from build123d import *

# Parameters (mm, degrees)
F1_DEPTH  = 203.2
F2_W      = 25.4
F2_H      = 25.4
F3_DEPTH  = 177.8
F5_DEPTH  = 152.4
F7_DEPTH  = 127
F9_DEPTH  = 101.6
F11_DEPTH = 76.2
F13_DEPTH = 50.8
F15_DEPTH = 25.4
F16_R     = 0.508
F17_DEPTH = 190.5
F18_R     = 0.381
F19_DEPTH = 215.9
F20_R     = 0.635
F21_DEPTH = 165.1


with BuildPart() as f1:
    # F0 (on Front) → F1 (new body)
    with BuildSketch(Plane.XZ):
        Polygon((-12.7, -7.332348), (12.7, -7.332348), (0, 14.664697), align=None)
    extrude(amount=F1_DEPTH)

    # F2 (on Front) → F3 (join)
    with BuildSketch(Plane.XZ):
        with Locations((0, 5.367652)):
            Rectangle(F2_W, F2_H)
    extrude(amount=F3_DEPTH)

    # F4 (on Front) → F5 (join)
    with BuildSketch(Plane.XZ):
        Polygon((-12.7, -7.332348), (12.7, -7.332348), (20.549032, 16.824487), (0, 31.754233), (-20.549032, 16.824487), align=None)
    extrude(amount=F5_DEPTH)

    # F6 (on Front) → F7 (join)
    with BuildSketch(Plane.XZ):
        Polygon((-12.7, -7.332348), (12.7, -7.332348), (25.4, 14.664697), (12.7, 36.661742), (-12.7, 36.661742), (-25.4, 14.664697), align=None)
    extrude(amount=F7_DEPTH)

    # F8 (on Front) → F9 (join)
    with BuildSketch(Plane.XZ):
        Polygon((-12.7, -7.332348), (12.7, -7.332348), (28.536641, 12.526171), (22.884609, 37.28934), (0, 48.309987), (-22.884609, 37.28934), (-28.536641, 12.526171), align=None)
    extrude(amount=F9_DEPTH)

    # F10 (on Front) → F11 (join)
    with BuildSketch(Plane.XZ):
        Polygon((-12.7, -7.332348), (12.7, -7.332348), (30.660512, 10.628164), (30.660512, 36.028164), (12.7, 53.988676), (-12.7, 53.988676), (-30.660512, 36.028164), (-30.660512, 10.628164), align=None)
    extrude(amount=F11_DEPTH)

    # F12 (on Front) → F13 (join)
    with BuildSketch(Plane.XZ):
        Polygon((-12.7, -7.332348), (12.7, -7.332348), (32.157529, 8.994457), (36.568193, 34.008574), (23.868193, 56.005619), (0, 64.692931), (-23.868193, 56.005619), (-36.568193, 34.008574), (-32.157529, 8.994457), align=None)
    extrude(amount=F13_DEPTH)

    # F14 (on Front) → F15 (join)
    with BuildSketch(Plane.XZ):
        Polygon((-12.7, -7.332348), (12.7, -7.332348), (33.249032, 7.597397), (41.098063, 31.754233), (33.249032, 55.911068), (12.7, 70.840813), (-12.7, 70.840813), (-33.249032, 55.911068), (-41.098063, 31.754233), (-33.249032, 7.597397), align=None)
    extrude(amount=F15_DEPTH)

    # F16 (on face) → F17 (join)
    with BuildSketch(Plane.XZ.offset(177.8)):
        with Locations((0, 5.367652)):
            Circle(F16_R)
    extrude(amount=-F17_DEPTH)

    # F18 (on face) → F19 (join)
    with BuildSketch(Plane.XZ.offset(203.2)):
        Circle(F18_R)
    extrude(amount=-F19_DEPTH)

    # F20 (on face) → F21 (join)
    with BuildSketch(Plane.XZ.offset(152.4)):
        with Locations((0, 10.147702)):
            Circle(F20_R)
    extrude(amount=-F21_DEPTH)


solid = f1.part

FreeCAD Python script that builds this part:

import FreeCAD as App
import Part
import Sketcher
Q = App.Units.Quantity

doc = App.newDocument("Part")
params = doc.addObject("Spreadsheet::Sheet", "Params")
for row, (alias, value) in enumerate([
    ("sketch1_width", "1 in"),
    ("sketch1_length", "1 in"),
    ("pad1_length", "8 in"),
    ("sketch2_width", "1 in"),
    ("pad2_length", "7 in"),
    ("sketch3_width", "1 in"),
    ("sketch3_length", "1 in"),
    ("pad3_length", "6 in"),
    ("sketch4_width", "1 in"),
    ("sketch4_length", "1 in"),
    ("pad4_length", "5 in"),
    ("sketch5_width", "1 in"),
    ("sketch5_length", "1 in"),
    ("pad5_length", "4 in"),
    ("sketch6_width", "1 in"),
    ("sketch6_length", "1 in"),
    ("pad6_length", "3 in"),
    ("sketch7_width", "1 in"),
    ("sketch7_length", "1 in"),
    ("pad7_length", "2 in"),
    ("sketch8_width", "1 in"),
    ("sketch8_length", "1 in"),
    ("pad8_length", "1 in"),
    ("sketch9_diameter", "0.04 in"),
    ("pad9_length", "7.5 in"),
    ("sketch10_diameter", "0.03 in"),
    ("pad10_length", "8.5 in"),
    ("sketch11_diameter", "0.05 in"),
    ("pad11_length", "6.5 in"),
], start=1):
    params.set(f"A{row}", alias)
    params.set(f"B{row}", "=" + value)
    params.setAlias(f"B{row}", alias)

body = doc.addObject("PartDesign::Body", "Body")

sketch1 = body.newObject("Sketcher::SketchObject", "Sketch")
sketch1.AttachmentSupport = (doc.getObject("XZ_Plane"), [""])
sketch1.MapMode = "FlatFace"
sketch1.addGeometry(Part.LineSegment(App.Vector(-13, -7, 0), App.Vector(13, -7, 0)), False)
sketch1.addGeometry(Part.LineSegment(App.Vector(13, -7, 0), App.Vector(0, 15, 0)), False)
sketch1.addGeometry(Part.LineSegment(App.Vector(0, 15, 0), App.Vector(-13, -7, 0)), False)
sketch1.addConstraint(Sketcher.Constraint("Coincident", 0, 2, 1, 1))
sketch1.addConstraint(Sketcher.Constraint("Coincident", 1, 2, 2, 1))
sketch1.addConstraint(Sketcher.Constraint("Coincident", 2, 2, 0, 1))
sketch1.addConstraint(Sketcher.Constraint("Horizontal", 0))
sketch1.addConstraint(Sketcher.Constraint("PointOnObject", 1, 2, -2))
sketch1.addConstraint(Sketcher.Constraint("Equal", 1, 2))
sketch1.addConstraint(Sketcher.Constraint("DistanceX", 0, 1, 0, 2, Q("1 in")))
sketch1.addConstraint(Sketcher.Constraint("Distance", 1, Q("1 in")))
sketch1.addConstraint(Sketcher.Constraint("DistanceY", 0, 2, -1, 1, Q("7.332348 mm")))
sketch1.setExpression("Constraints[6]", "Params.sketch1_width")
sketch1.setExpression("Constraints[7]", "Params.sketch1_length")
pad1 = body.newObject("PartDesign::Pad", "Pad")
pad1.Profile = sketch1
pad1.setExpression("Length", "Params.pad1_length")

sketch2 = body.newObject("Sketcher::SketchObject", "Sketch001")
sketch2.AttachmentSupport = (doc.getObject("XZ_Plane"), [""])
sketch2.MapMode = "FlatFace"
sketch2.addGeometry(Part.LineSegment(App.Vector(-13, 18, 0), App.Vector(-13, -7, 0)), False)
sketch2.addGeometry(Part.LineSegment(App.Vector(-13, -7, 0), App.Vector(13, -7, 0)), False)
sketch2.addGeometry(Part.LineSegment(App.Vector(13, -7, 0), App.Vector(13, 18, 0)), False)
sketch2.addGeometry(Part.LineSegment(App.Vector(13, 18, 0), App.Vector(-13, 18, 0)), False)
sketch2.addConstraint(Sketcher.Constraint("Coincident", 0, 2, 1, 1))
sketch2.addConstraint(Sketcher.Constraint("Coincident", 1, 2, 2, 1))
sketch2.addConstraint(Sketcher.Constraint("Coincident", 2, 2, 3, 1))
sketch2.addConstraint(Sketcher.Constraint("Coincident", 3, 2, 0, 1))
sketch2.addConstraint(Sketcher.Constraint("Vertical", 0))
sketch2.addConstraint(Sketcher.Constraint("Horizontal", 1))
sketch2.addConstraint(Sketcher.Constraint("Vertical", 2))
sketch2.addConstraint(Sketcher.Constraint("Horizontal", 3))
sketch2.addConstraint(Sketcher.Constraint("Equal", 3, 0))
sketch2.addConstraint(Sketcher.Constraint("DistanceX", 1, 1, 1, 2, Q("1 in")))
sketch2.addConstraint(Sketcher.Constraint("DistanceX", 0, 2, -1, 1, Q("0.5 in")))
sketch2.addConstraint(Sketcher.Constraint("DistanceY", -1, 1, 2, 2, Q("18.067652 mm")))
sketch2.setExpression("Constraints[9]", "Params.sketch2_width")
pad2 = body.newObject("PartDesign::Pad", "Pad001")
pad2.Profile = sketch2
pad2.setExpression("Length", "Params.pad2_length")

sketch3 = body.newObject("Sketcher::SketchObject", "Sketch002")
sketch3.AttachmentSupport = (doc.getObject("XZ_Plane"), [""])
sketch3.MapMode = "FlatFace"
sketch3.addGeometry(Part.LineSegment(App.Vector(-13, -7, 0), App.Vector(13, -7, 0)), False)
sketch3.addGeometry(Part.LineSegment(App.Vector(13, -7, 0), App.Vector(21, 17, 0)), False)
sketch3.addGeometry(Part.LineSegment(App.Vector(21, 17, 0), App.Vector(0, 32, 0)), False)
sketch3.addGeometry(Part.LineSegment(App.Vector(0, 32, 0), App.Vector(-21, 17, 0)), False)
sketch3.addGeometry(Part.LineSegment(App.Vector(-21, 17, 0), App.Vector(-13, -7, 0)), False)
sketch3.addConstraint(Sketcher.Constraint("Coincident", 0, 2, 1, 1))
sketch3.addConstraint(Sketcher.Constraint("Coincident", 1, 2, 2, 1))
sketch3.addConstraint(Sketcher.Constraint("Coincident", 2, 2, 3, 1))
sketch3.addConstraint(Sketcher.Constraint("Coincident", 3, 2, 4, 1))
sketch3.addConstraint(Sketcher.Constraint("Coincident", 4, 2, 0, 1))
sketch3.addConstraint(Sketcher.Constraint("Horizontal", 0))
sketch3.addConstraint(Sketcher.Constraint("Symmetric", 1, 2, 3, 2, -2))
sketch3.addConstraint(Sketcher.Constraint("PointOnObject", 2, 2, -2))
sketch3.addConstraint(Sketcher.Constraint("Equal", 1, 2))
sketch3.addConstraint(Sketcher.Constraint("Equal", 3, 4))
sketch3.addConstraint(Sketcher.Constraint("DistanceX", 0, 1, 0, 2, Q("1 in")))
sketch3.addConstraint(Sketcher.Constraint("Distance", 1, Q("1 in")))
sketch3.addConstraint(Sketcher.Constraint("Angle", 1, Q("71.999999 deg")))
sketch3.addConstraint(Sketcher.Constraint("DistanceY", 0, 2, -1, 1, Q("7.332348 mm")))
sketch3.setExpression("Constraints[10]", "Params.sketch3_width")
sketch3.setExpression("Constraints[11]", "Params.sketch3_length")
pad3 = body.newObject("PartDesign::Pad", "Pad002")
pad3.Profile = sketch3
pad3.setExpression("Length", "Params.pad3_length")

sketch4 = body.newObject("Sketcher::SketchObject", "Sketch003")
sketch4.AttachmentSupport = (doc.getObject("XZ_Plane"), [""])
sketch4.MapMode = "FlatFace"
sketch4.addGeometry(Part.LineSegment(App.Vector(-13, -7, 0), App.Vector(13, -7, 0)), False)
sketch4.addGeometry(Part.LineSegment(App.Vector(13, -7, 0), App.Vector(25, 15, 0)), False)
sketch4.addGeometry(Part.LineSegment(App.Vector(25, 15, 0), App.Vector(13, 37, 0)), False)
sketch4.addGeometry(Part.LineSegment(App.Vector(13, 37, 0), App.Vector(-13, 37, 0)), False)
sketch4.addGeometry(Part.LineSegment(App.Vector(-13, 37, 0), App.Vector(-25, 15, 0)), False)
sketch4.addGeometry(Part.LineSegment(App.Vector(-25, 15, 0), App.Vector(-13, -7, 0)), False)
sketch4.addConstraint(Sketcher.Constraint("Coincident", 0, 2, 1, 1))
sketch4.addConstraint(Sketcher.Constraint("Coincident", 1, 2, 2, 1))
sketch4.addConstraint(Sketcher.Constraint("Coincident", 2, 2, 3, 1))
sketch4.addConstraint(Sketcher.Constraint("Coincident", 3, 2, 4, 1))
sketch4.addConstraint(Sketcher.Constraint("Coincident", 4, 2, 5, 1))
sketch4.addConstraint(Sketcher.Constraint("Coincident", 5, 2, 0, 1))
sketch4.addConstraint(Sketcher.Constraint("Horizontal", 0))
sketch4.addConstraint(Sketcher.Constraint("Horizontal", 3))
sketch4.addConstraint(Sketcher.Constraint("Symmetric", 1, 2, 4, 2, -2))
sketch4.addConstraint(Sketcher.Constraint("Parallel", 1, 4))
sketch4.addConstraint(Sketcher.Constraint("Parallel", 2, 5))
sketch4.addConstraint(Sketcher.Constraint("Vertical", 0, 2, 2, 2))
sketch4.addConstraint(Sketcher.Constraint("Vertical", 3, 2, 5, 2))
sketch4.addConstraint(Sketcher.Constraint("DistanceX", 0, 1, 0, 2, Q("1 in")))
sketch4.addConstraint(Sketcher.Constraint("Distance", 1, Q("1 in")))
sketch4.addConstraint(Sketcher.Constraint("DistanceX", -1, 1, 1, 2, Q("1 in")))
sketch4.addConstraint(Sketcher.Constraint("DistanceY", -1, 1, 2, 2, Q("36.661742 mm")))
sketch4.setExpression("Constraints[13]", "Params.sketch4_width")
sketch4.setExpression("Constraints[14]", "Params.sketch4_length")
pad4 = body.newObject("PartDesign::Pad", "Pad003")
pad4.Profile = sketch4
pad4.setExpression("Length", "Params.pad4_length")

sketch5 = body.newObject("Sketcher::SketchObject", "Sketch004")
sketch5.AttachmentSupport = (doc.getObject("XZ_Plane"), [""])
sketch5.MapMode = "FlatFace"
sketch5.addGeometry(Part.LineSegment(App.Vector(-13, -7, 0), App.Vector(13, -7, 0)), False)
sketch5.addGeometry(Part.LineSegment(App.Vector(13, -7, 0), App.Vector(29, 13, 0)), False)
sketch5.addGeometry(Part.LineSegment(App.Vector(29, 13, 0), App.Vector(23, 37, 0)), False)
sketch5.addGeometry(Part.LineSegment(App.Vector(23, 37, 0), App.Vector(0, 48, 0)), False)
sketch5.addGeometry(Part.LineSegment(App.Vector(0, 48, 0), App.Vector(-23, 37, 0)), False)
sketch5.addGeometry(Part.LineSegment(App.Vector(-23, 37, 0), App.Vector(-29, 13, 0)), False)
sketch5.addGeometry(Part.LineSegment(App.Vector(-29, 13, 0), App.Vector(-13, -7, 0)), False)
sketch5.addConstraint(Sketcher.Constraint("Coincident", 0, 2, 1, 1))
sketch5.addConstraint(Sketcher.Constraint("Coincident", 1, 2, 2, 1))
sketch5.addConstraint(Sketcher.Constraint("Coincident", 2, 2, 3, 1))
sketch5.addConstraint(Sketcher.Constraint("Coincident", 3, 2, 4, 1))
sketch5.addConstraint(Sketcher.Constraint("Coincident", 4, 2, 5, 1))
sketch5.addConstraint(Sketcher.Constraint("Coincident", 5, 2, 6, 1))
sketch5.addConstraint(Sketcher.Constraint("Coincident", 6, 2, 0, 1))
sketch5.addConstraint(Sketcher.Constraint("Horizontal", 0))
sketch5.addConstraint(Sketcher.Constraint("Symmetric", 2, 2, 4, 2, -2))
sketch5.addConstraint(Sketcher.Constraint("Symmetric", 1, 2, 5, 2, -2))
sketch5.addConstraint(Sketcher.Constraint("PointOnObject", 3, 2, -2))
sketch5.addConstraint(Sketcher.Constraint("Equal", 1, 2))
sketch5.addConstraint(Sketcher.Constraint("Equal", 2, 3))
sketch5.addConstraint(Sketcher.Constraint("Equal", 5, 6))
sketch5.addConstraint(Sketcher.Constraint("DistanceX", 0, 1, 0, 2, Q("1 in")))
sketch5.addConstraint(Sketcher.Constraint("Distance", 1, Q("1 in")))
sketch5.addConstraint(Sketcher.Constraint("DistanceX", -1, 1, 1, 2, Q("28.536641 mm")))
sketch5.addConstraint(Sketcher.Constraint("DistanceY", -1, 1, 1, 2, Q("12.526171 mm")))
sketch5.addConstraint(Sketcher.Constraint("DistanceX", -1, 1, 2, 2, Q("22.884609 mm")))
sketch5.setExpression("Constraints[14]", "Params.sketch5_width")
sketch5.setExpression("Constraints[15]", "Params.sketch5_length")
pad5 = body.newObject("PartDesign::Pad", "Pad004")
pad5.Profile = sketch5
pad5.setExpression("Length", "Params.pad5_length")

sketch6 = body.newObject("Sketcher::SketchObject", "Sketch005")
sketch6.AttachmentSupport = (doc.getObject("XZ_Plane"), [""])
sketch6.MapMode = "FlatFace"
sketch6.addGeometry(Part.LineSegment(App.Vector(-13, -7, 0), App.Vector(13, -7, 0)), False)
sketch6.addGeometry(Part.LineSegment(App.Vector(13, -7, 0), App.Vector(31, 11, 0)), False)
sketch6.addGeometry(Part.LineSegment(App.Vector(31, 11, 0), App.Vector(31, 36, 0)), False)
sketch6.addGeometry(Part.LineSegment(App.Vector(31, 36, 0), App.Vector(13, 54, 0)), False)
sketch6.addGeometry(Part.LineSegment(App.Vector(13, 54, 0), App.Vector(-13, 54, 0)), False)
sketch6.addGeometry(Part.LineSegment(App.Vector(-13, 54, 0), App.Vector(-31, 36, 0)), False)
sketch6.addGeometry(Part.LineSegment(App.Vector(-31, 36, 0), App.Vector(-31, 11, 0)), False)
sketch6.addGeometry(Part.LineSegment(App.Vector(-31, 11, 0), App.Vector(-13, -7, 0)), False)
sketch6.addConstraint(Sketcher.Constraint("Coincident", 0, 2, 1, 1))
sketch6.addConstraint(Sketcher.Constraint("Coincident", 1, 2, 2, 1))
sketch6.addConstraint(Sketcher.Constraint("Coincident", 2, 2, 3, 1))
sketch6.addConstraint(Sketcher.Constraint("Coincident", 3, 2, 4, 1))
sketch6.addConstraint(Sketcher.Constraint("Coincident", 4, 2, 5, 1))
sketch6.addConstraint(Sketcher.Constraint("Coincident", 5, 2, 6, 1))
sketch6.addConstraint(Sketcher.Constraint("Coincident", 6, 2, 7, 1))
sketch6.addConstraint(Sketcher.Constraint("Coincident", 7, 2, 0, 1))
sketch6.addConstraint(Sketcher.Constraint("Horizontal", 0))
sketch6.addConstraint(Sketcher.Constraint("Vertical", 2))
sketch6.addConstraint(Sketcher.Constraint("Horizontal", 4))
sketch6.addConstraint(Sketcher.Constraint("Vertical", 6))
sketch6.addConstraint(Sketcher.Constraint("Symmetric", 2, 2, 5, 2, -2))
sketch6.addConstraint(Sketcher.Constraint("Perpendicular", 1, 3))
sketch6.addConstraint(Sketcher.Constraint("Perpendicular", 3, 5))
sketch6.addConstraint(Sketcher.Constraint("Perpendicular", 5, 7))
sketch6.addConstraint(Sketcher.Constraint("Horizontal", 1, 2, 6, 2))
sketch6.addConstraint(Sketcher.Constraint("Vertical", 0, 2, 3, 2))
sketch6.addConstraint(Sketcher.Constraint("Vertical", 4, 2, 7, 2))
sketch6.addConstraint(Sketcher.Constraint("Equal", 4, 2))
sketch6.addConstraint(Sketcher.Constraint("DistanceX", 0, 1, 0, 2, Q("1 in")))
sketch6.addConstraint(Sketcher.Constraint("Distance", 1, Q("1 in")))
sketch6.addConstraint(Sketcher.Constraint("DistanceY", 0, 2, -1, 1, Q("7.332348 mm")))
sketch6.setExpression("Constraints[20]", "Params.sketch6_width")
sketch6.setExpression("Constraints[21]", "Params.sketch6_length")
pad6 = body.newObject("PartDesign::Pad", "Pad005")
pad6.Profile = sketch6
pad6.setExpression("Length", "Params.pad6_length")

sketch7 = body.newObject("Sketcher::SketchObject", "Sketch006")
sketch7.AttachmentSupport = (doc.getObject("XZ_Plane"), [""])
sketch7.MapMode = "FlatFace"
sketch7.addGeometry(Part.LineSegment(App.Vector(-13, -7, 0), App.Vector(13, -7, 0)), False)
sketch7.addGeometry(Part.LineSegment(App.Vector(13, -7, 0), App.Vector(32, 9, 0)), False)
sketch7.addGeometry(Part.LineSegment(App.Vector(32, 9, 0), App.Vector(37, 34, 0)), False)
sketch7.addGeometry(Part.LineSegment(App.Vector(37, 34, 0), App.Vector(24, 56, 0)), False)
sketch7.addGeometry(Part.LineSegment(App.Vector(24, 56, 0), App.Vector(0, 65, 0)), False)
sketch7.addGeometry(Part.LineSegment(App.Vector(0, 65, 0), App.Vector(-24, 56, 0)), False)
sketch7.addGeometry(Part.LineSegment(App.Vector(-24, 56, 0), App.Vector(-37, 34, 0)), False)
sketch7.addGeometry(Part.LineSegment(App.Vector(-37, 34, 0), App.Vector(-32, 9, 0)), False)
sketch7.addGeometry(Part.LineSegment(App.Vector(-32, 9, 0), App.Vector(-13, -7, 0)), False)
sketch7.addConstraint(Sketcher.Constraint("Coincident", 0, 2, 1, 1))
sketch7.addConstraint(Sketcher.Constraint("Coincident", 1, 2, 2, 1))
sketch7.addConstraint(Sketcher.Constraint("Coincident", 2, 2, 3, 1))
sketch7.addConstraint(Sketcher.Constraint("Coincident", 3, 2, 4, 1))
sketch7.addConstraint(Sketcher.Constraint("Coincident", 4, 2, 5, 1))
sketch7.addConstraint(Sketcher.Constraint("Coincident", 5, 2, 6, 1))
sketch7.addConstraint(Sketcher.Constraint("Coincident", 6, 2, 7, 1))
sketch7.addConstraint(Sketcher.Constraint("Coincident", 7, 2, 8, 1))
sketch7.addConstraint(Sketcher.Constraint("Coincident", 8, 2, 0, 1))
sketch7.addConstraint(Sketcher.Constraint("Horizontal", 0))
sketch7.addConstraint(Sketcher.Constraint("Symmetric", 3, 2, 5, 2, -2))
sketch7.addConstraint(Sketcher.Constraint("Symmetric", 2, 2, 6, 2, -2))
sketch7.addConstraint(Sketcher.Constraint("Symmetric", 1, 2, 7, 2, -2))
sketch7.addConstraint(Sketcher.Constraint("PointOnObject", 4, 2, -2))
sketch7.addConstraint(Sketcher.Constraint("Equal", 1, 2))
sketch7.addConstraint(Sketcher.Constraint("Equal", 2, 3))
sketch7.addConstraint(Sketcher.Constraint("Equal", 3, 4))
sketch7.addConstraint(Sketcher.Constraint("Equal", 7, 8))
sketch7.addConstraint(Sketcher.Constraint("DistanceX", 0, 1, 0, 2, Q("1 in")))
sketch7.addConstraint(Sketcher.Constraint("Distance", 1, Q("1 in")))
sketch7.addConstraint(Sketcher.Constraint("Angle", 1, Q("39.999999 deg")))
sketch7.addConstraint(Sketcher.Constraint("Angle", 2, Q("79.999999 deg")))
sketch7.addConstraint(Sketcher.Constraint("Angle", 3, Q("120 deg")))
sketch7.addConstraint(Sketcher.Constraint("DistanceY", -1, 1, 3, 2, Q("56.005619 mm")))
sketch7.setExpression("Constraints[18]", "Params.sketch7_width")
sketch7.setExpression("Constraints[19]", "Params.sketch7_length")
pad7 = body.newObject("PartDesign::Pad", "Pad006")
pad7.Profile = sketch7
pad7.setExpression("Length", "Params.pad7_length")

sketch8 = body.newObject("Sketcher::SketchObject", "Sketch007")
sketch8.AttachmentSupport = (doc.getObject("XZ_Plane"), [""])
sketch8.MapMode = "FlatFace"
sketch8.addGeometry(Part.LineSegment(App.Vector(-13, -7, 0), App.Vector(13, -7, 0)), False)
sketch8.addGeometry(Part.LineSegment(App.Vector(13, -7, 0), App.Vector(33, 8, 0)), False)
sketch8.addGeometry(Part.LineSegment(App.Vector(33, 8, 0), App.Vector(41, 32, 0)), False)
sketch8.addGeometry(Part.LineSegment(App.Vector(41, 32, 0), App.Vector(33, 56, 0)), False)
sketch8.addGeometry(Part.LineSegment(App.Vector(33, 56, 0), App.Vector(13, 71, 0)), False)
sketch8.addGeometry(Part.LineSegment(App.Vector(13, 71, 0), App.Vector(-13, 71, 0)), False)
sketch8.addGeometry(Part.LineSegment(App.Vector(-13, 71, 0), App.Vector(-33, 56, 0)), False)
sketch8.addGeometry(Part.LineSegment(App.Vector(-33, 56, 0), App.Vector(-41, 32, 0)), False)
sketch8.addGeometry(Part.LineSegment(App.Vector(-41, 32, 0), App.Vector(-33, 8, 0)), False)
sketch8.addGeometry(Part.LineSegment(App.Vector(-33, 8, 0), App.Vector(-13, -7, 0)), False)
sketch8.addConstraint(Sketcher.Constraint("Coincident", 0, 2, 1, 1))
sketch8.addConstraint(Sketcher.Constraint("Coincident", 1, 2, 2, 1))
sketch8.addConstraint(Sketcher.Constraint("Coincident", 2, 2, 3, 1))
sketch8.addConstraint(Sketcher.Constraint("Coincident", 3, 2, 4, 1))
sketch8.addConstraint(Sketcher.Constraint("Coincident", 4, 2, 5, 1))
sketch8.addConstraint(Sketcher.Constraint("Coincident", 5, 2, 6, 1))
sketch8.addConstraint(Sketcher.Constraint("Coincident", 6, 2, 7, 1))
sketch8.addConstraint(Sketcher.Constraint("Coincident", 7, 2, 8, 1))
sketch8.addConstraint(Sketcher.Constraint("Coincident", 8, 2, 9, 1))
sketch8.addConstraint(Sketcher.Constraint("Coincident", 9, 2, 0, 1))
sketch8.addConstraint(Sketcher.Constraint("Horizontal", 0))
sketch8.addConstraint(Sketcher.Constraint("Horizontal", 5))
sketch8.addConstraint(Sketcher.Constraint("Symmetric", 3, 2, 6, 2, -2))
sketch8.addConstraint(Sketcher.Constraint("Symmetric", 2, 2, 7, 2, -2))
sketch8.addConstraint(Sketcher.Constraint("Symmetric", 1, 2, 8, 2, -2))
sketch8.addConstraint(Sketcher.Constraint("Parallel", 1, 6))
sketch8.addConstraint(Sketcher.Constraint("Parallel", 2, 7))
sketch8.addConstraint(Sketcher.Constraint("Parallel", 4, 9))
sketch8.addConstraint(Sketcher.Constraint("Vertical", 1, 2, 3, 2))
sketch8.addConstraint(Sketcher.Constraint("Vertical", 0, 2, 4, 2))
sketch8.addConstraint(Sketcher.Constraint("Vertical", 5, 2, 9, 2))
sketch8.addConstraint(Sketcher.Constraint("Equal", 1, 2))
sketch8.addConstraint(Sketcher.Constraint("DistanceX", 0, 1, 0, 2, Q("1 in")))
sketch8.addConstraint(Sketcher.Constraint("Distance", 1, Q("1 in")))
sketch8.addConstraint(Sketcher.Constraint("Angle", 1, Q("35.999999 deg")))
sketch8.addConstraint(Sketcher.Constraint("Angle", 2, Q("72.000002 deg")))
sketch8.addConstraint(Sketcher.Constraint("DistanceY", 0, 2, -1, 1, Q("7.332348 mm")))
sketch8.setExpression("Constraints[22]", "Params.sketch8_width")
sketch8.setExpression("Constraints[23]", "Params.sketch8_length")
pad8 = body.newObject("PartDesign::Pad", "Pad007")
pad8.Profile = sketch8
pad8.setExpression("Length", "Params.pad8_length")

sketch9 = body.newObject("Sketcher::SketchObject", "Sketch008")
sketch9.AttachmentSupport = (doc.getObject("XZ_Plane"), [""])
sketch9.MapMode = "FlatFace"
sketch9.AttachmentOffset = App.Placement(App.Vector(0, 0, 7 * 25.4), App.Rotation())
sketch9.addGeometry(Part.Circle(App.Vector(0, 5.4, 0), App.Vector(0, 0, 1), 0.5), False)
sketch9.addConstraint(Sketcher.Constraint("PointOnObject", 0, 3, -2))
sketch9.addConstraint(Sketcher.Constraint("Diameter", 0, Q("0.04 in")))
sketch9.addConstraint(Sketcher.Constraint("DistanceY", -1, 1, 0, 3, Q("5.367652 mm")))
sketch9.setExpression("Constraints[1]", "Params.sketch9_diameter")
pad9 = body.newObject("PartDesign::Pad", "Pad008")
pad9.Profile = sketch9
pad9.setExpression("Length", "Params.pad9_length")
pad9.Reversed = True

sketch10 = body.newObject("Sketcher::SketchObject", "Sketch009")
sketch10.AttachmentSupport = (doc.getObject("XZ_Plane"), [""])
sketch10.MapMode = "FlatFace"
sketch10.AttachmentOffset = App.Placement(App.Vector(0, 0, 8 * 25.4), App.Rotation())
sketch10.addGeometry(Part.Circle(App.Vector(0, 0, 0), App.Vector(0, 0, 1), 0.38), False)
sketch10.addConstraint(Sketcher.Constraint("Coincident", 0, 3, -1, 1))
sketch10.addConstraint(Sketcher.Constraint("Diameter", 0, Q("0.03 in")))
sketch10.setExpression("Constraints[1]", "Params.sketch10_diameter")
pad10 = body.newObject("PartDesign::Pad", "Pad009")
pad10.Profile = sketch10
pad10.setExpression("Length", "Params.pad10_length")
pad10.Reversed = True

sketch11 = body.newObject("Sketcher::SketchObject", "Sketch010")
sketch11.AttachmentSupport = (doc.getObject("XZ_Plane"), [""])
sketch11.MapMode = "FlatFace"
sketch11.AttachmentOffset = App.Placement(App.Vector(0, 0, 6 * 25.4), App.Rotation())
sketch11.addGeometry(Part.Circle(App.Vector(0, 10.1, 0), App.Vector(0, 0, 1), 0.6), False)
sketch11.addConstraint(Sketcher.Constraint("PointOnObject", 0, 3, -2))
sketch11.addConstraint(Sketcher.Constraint("Diameter", 0, Q("0.05 in")))
sketch11.addConstraint(Sketcher.Constraint("DistanceY", -1, 1, 0, 3, Q("10.147702 mm")))
sketch11.setExpression("Constraints[1]", "Params.sketch11_diameter")
pad11 = body.newObject("PartDesign::Pad", "Pad010")
pad11.Profile = sketch11
pad11.setExpression("Length", "Params.pad11_length")
pad11.Reversed = True

doc.recompute()
